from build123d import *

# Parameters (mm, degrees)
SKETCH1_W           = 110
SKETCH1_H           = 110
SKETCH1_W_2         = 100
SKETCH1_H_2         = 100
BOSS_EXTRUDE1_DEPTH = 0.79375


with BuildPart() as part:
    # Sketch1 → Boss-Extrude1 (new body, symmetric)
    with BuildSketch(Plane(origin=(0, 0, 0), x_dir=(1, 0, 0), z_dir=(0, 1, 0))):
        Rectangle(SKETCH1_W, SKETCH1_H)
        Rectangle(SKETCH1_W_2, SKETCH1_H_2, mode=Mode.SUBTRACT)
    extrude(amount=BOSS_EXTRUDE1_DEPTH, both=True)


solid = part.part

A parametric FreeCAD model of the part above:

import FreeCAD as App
import Part
import Sketcher

doc = App.newDocument("Part")
params = doc.addObject("Spreadsheet::Sheet", "Params")
for row, (alias, value) in enumerate([
    ("sketch1_width", "110 mm"),
    ("sketch1_width2", "100 mm"),
    ("pad1_length", "1.5875 mm"),
], start=1):
    params.set(f"A{row}", alias)
    params.set(f"B{row}", "=" + value)
    params.setAlias(f"B{row}", alias)

body = doc.addObject("PartDesign::Body", "Body")

# Sketch on XZ plane
sketch1 = body.newObject("Sketcher::SketchObject", "Sketch")
sketch1.AttachmentSupport = (doc.getObject("XZ_Plane"), [""])
sketch1.MapMode = "FlatFace"
sketch1.addGeometry([
    Part.LineSegment(App.Vector(-55, -55, 0), App.Vector(-55, 55, 0)),  # 0
    Part.LineSegment(App.Vector(-55, 55, 0), App.Vector(55, 55, 0)),  # 1
    Part.LineSegment(App.Vector(55, 55, 0), App.Vector(55, -55, 0)),  # 2
    Part.LineSegment(App.Vector(55, -55, 0), App.Vector(-55, -55, 0)),  # 3
    Part.LineSegment(App.Vector(50, 50, 0), App.Vector(-50, 50, 0)),  # 4
    Part.LineSegment(App.Vector(-50, 50, 0), App.Vector(-50, -50, 0)),  # 5
    Part.LineSegment(App.Vector(-50, -50, 0), App.Vector(50, -50, 0)),  # 6
    Part.LineSegment(App.Vector(50, -50, 0), App.Vector(50, 50, 0)),  # 7
], False)
sketch1.addConstraint([
    Sketcher.Constraint("Coincident", 0, 2, 1, 1),
    Sketcher.Constraint("Coincident", 1, 2, 2, 1),
    Sketcher.Constraint("Coincident", 2, 2, 3, 1),
    Sketcher.Constraint("Coincident", 3, 2, 0, 1),
    Sketcher.Constraint("Coincident", 4, 2, 5, 1),
    Sketcher.Constraint("Coincident", 5, 2, 6, 1),
    Sketcher.Constraint("Coincident", 6, 2, 7, 1),
    Sketcher.Constraint("Coincident", 7, 2, 4, 1),
    Sketcher.Constraint("Vertical", 0),
    Sketcher.Constraint("Horizontal", 1),
    Sketcher.Constraint("Vertical", 2),
    Sketcher.Constraint("Horizontal", 3),
    Sketcher.Constraint("Horizontal", 4),
    Sketcher.Constraint("Vertical", 5),
    Sketcher.Constraint("Horizontal", 6),
    Sketcher.Constraint("Vertical", 7),
    Sketcher.Constraint("Symmetric", 0, 2, 2, 2, -1, 1),
    Sketcher.Constraint("Symmetric", 4, 2, 6, 2, -1, 1),
    Sketcher.Constraint("Equal", 3, 0),
    Sketcher.Constraint("Equal", 6, 5),
    Sketcher.Constraint("DistanceX", 1, 1, 1, 2, 110.0),
    Sketcher.Constraint("DistanceX", 4, 2, 4, 1, 100.0),
])
sketch1.setExpression("Constraints[20]", "Params.sketch1_width")
sketch1.setExpression("Constraints[21]", "Params.sketch1_width2")
pad1 = body.newObject("PartDesign::Pad", "Pad")
pad1.Profile = sketch1
pad1.setExpression("Length", "Params.pad1_length")
pad1.Midplane = True

doc.recompute()
